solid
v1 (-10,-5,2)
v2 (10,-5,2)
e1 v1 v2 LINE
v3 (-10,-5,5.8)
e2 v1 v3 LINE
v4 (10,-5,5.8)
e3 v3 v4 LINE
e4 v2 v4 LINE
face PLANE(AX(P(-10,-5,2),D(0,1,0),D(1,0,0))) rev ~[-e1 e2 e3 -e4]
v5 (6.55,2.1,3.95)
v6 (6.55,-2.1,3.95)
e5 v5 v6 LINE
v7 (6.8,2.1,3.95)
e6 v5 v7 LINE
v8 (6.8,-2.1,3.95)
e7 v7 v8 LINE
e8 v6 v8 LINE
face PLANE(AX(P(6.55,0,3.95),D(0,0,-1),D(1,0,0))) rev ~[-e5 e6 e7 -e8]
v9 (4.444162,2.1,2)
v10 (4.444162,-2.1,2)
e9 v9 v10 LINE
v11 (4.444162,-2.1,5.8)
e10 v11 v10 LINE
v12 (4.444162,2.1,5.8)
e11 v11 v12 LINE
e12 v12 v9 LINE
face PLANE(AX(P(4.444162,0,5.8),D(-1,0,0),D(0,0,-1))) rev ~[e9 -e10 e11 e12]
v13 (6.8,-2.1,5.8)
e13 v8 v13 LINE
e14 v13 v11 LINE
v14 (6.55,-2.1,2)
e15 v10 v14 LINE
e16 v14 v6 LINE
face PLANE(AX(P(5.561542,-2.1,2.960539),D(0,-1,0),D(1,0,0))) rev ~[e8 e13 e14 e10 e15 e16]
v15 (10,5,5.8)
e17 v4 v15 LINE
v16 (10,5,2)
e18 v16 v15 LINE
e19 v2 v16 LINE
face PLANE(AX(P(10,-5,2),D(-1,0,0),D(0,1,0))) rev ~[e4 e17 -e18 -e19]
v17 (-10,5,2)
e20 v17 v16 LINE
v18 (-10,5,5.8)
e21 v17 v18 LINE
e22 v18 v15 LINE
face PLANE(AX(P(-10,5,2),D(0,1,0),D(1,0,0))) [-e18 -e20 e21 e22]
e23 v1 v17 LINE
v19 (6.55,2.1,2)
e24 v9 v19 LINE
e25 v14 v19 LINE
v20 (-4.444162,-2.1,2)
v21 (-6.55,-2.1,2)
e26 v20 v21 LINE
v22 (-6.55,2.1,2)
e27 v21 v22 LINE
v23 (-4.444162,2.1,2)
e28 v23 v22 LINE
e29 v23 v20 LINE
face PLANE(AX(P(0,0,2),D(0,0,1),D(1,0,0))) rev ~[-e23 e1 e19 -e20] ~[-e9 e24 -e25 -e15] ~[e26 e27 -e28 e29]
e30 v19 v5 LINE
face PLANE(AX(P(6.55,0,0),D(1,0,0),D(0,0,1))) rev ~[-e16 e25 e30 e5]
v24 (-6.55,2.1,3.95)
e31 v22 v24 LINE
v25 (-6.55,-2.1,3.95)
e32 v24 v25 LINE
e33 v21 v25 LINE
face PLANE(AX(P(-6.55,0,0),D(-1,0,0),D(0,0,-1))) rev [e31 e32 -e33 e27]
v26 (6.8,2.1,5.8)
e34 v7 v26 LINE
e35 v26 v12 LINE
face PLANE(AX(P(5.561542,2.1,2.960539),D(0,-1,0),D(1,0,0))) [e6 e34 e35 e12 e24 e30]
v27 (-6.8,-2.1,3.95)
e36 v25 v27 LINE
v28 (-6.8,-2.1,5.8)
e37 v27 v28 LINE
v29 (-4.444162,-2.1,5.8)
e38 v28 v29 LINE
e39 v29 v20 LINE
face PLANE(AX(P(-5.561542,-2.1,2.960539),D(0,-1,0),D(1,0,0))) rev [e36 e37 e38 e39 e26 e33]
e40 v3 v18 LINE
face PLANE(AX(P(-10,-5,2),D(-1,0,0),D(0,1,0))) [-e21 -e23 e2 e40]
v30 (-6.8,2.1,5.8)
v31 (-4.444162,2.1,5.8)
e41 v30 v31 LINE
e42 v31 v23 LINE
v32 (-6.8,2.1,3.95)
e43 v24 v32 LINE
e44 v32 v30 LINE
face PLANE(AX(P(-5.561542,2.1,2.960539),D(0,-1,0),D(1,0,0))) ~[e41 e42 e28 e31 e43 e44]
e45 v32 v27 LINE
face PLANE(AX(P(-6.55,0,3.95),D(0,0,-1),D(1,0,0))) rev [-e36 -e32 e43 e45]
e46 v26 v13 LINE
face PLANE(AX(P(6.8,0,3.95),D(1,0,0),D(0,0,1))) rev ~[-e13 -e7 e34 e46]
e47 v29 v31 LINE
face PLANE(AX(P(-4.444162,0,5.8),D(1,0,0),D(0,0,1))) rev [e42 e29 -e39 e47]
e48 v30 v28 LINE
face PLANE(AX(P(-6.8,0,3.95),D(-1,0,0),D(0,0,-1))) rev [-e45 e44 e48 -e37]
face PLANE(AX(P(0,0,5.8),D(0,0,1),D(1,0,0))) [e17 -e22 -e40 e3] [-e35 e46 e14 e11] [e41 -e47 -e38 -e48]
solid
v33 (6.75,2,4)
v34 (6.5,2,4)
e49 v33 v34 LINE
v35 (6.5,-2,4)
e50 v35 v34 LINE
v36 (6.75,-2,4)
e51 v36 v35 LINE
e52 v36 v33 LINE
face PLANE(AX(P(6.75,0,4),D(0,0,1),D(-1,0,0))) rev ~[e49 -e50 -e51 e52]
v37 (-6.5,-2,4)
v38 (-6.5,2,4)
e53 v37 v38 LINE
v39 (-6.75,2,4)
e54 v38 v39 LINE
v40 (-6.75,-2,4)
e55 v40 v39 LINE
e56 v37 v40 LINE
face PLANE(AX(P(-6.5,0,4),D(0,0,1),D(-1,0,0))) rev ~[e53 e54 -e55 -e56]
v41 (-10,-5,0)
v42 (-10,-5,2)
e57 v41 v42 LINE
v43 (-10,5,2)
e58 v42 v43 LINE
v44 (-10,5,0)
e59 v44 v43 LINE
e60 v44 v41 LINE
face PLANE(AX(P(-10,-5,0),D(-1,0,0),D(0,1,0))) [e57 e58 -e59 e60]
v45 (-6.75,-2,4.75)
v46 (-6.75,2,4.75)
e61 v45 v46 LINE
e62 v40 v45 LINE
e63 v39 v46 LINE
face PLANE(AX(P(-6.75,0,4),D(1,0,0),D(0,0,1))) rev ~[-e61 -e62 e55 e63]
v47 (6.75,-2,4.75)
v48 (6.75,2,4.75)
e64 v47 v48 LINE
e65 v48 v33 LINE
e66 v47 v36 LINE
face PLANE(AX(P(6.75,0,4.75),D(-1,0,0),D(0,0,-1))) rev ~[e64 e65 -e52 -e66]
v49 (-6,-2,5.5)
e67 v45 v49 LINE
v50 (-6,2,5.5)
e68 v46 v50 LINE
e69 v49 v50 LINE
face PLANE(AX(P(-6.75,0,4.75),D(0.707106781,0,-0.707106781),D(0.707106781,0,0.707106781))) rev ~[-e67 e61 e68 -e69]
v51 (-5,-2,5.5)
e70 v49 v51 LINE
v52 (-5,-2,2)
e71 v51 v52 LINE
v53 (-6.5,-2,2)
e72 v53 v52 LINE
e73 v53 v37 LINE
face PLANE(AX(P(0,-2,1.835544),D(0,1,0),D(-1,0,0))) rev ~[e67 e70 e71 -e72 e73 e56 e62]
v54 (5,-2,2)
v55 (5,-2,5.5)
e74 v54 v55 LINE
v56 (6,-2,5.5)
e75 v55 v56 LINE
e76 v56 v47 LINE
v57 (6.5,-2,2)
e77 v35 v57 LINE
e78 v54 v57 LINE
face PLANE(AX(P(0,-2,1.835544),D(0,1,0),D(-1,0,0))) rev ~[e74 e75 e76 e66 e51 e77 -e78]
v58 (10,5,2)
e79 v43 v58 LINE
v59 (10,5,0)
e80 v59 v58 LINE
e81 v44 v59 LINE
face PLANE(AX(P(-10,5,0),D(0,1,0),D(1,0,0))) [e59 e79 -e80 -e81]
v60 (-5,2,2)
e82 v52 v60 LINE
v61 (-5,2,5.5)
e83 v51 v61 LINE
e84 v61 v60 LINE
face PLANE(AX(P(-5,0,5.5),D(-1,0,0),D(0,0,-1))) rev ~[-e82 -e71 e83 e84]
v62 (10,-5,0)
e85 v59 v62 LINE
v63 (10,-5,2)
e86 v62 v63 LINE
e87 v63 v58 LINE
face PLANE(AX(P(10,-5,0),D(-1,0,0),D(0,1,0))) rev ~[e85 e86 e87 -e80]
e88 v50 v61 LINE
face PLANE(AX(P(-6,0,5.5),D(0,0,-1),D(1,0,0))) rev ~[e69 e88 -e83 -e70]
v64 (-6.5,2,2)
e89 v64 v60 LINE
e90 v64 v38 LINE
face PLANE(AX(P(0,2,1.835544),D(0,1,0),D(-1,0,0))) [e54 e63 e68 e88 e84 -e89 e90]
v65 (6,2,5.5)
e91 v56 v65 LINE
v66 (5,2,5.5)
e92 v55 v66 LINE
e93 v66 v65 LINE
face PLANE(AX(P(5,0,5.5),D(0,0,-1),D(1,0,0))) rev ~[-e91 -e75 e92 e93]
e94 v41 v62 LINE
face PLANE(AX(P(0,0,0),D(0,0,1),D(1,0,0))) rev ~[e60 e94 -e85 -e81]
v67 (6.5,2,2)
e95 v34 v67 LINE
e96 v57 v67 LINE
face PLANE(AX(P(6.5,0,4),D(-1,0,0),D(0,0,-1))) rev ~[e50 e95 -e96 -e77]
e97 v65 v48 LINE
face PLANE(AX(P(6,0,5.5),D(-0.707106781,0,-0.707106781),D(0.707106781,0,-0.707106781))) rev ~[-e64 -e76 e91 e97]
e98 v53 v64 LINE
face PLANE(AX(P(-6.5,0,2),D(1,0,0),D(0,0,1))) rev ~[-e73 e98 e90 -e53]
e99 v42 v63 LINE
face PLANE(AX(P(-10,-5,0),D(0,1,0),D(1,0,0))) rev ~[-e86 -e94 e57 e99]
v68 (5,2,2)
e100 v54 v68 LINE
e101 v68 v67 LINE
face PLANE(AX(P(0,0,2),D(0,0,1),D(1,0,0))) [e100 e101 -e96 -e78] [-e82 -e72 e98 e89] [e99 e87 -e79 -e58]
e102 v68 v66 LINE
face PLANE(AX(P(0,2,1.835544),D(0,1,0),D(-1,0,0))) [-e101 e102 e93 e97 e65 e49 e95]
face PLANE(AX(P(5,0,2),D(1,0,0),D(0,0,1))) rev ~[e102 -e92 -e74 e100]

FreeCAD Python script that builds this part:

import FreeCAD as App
import Part
import Sketcher

V = App.Vector
Q = App.Units.Quantity

doc = App.newDocument("Part")
body = doc.addObject("PartDesign::Body", "Body")

# Sketch on XY plane
sketch1 = body.newObject("Sketcher::SketchObject", "Sketch")
sketch1.AttachmentSupport = (doc.getObject("XY_Plane"), [""])
sketch1.MapMode = "FlatFace"
sketch1.addGeometry([
    Part.LineSegment(V(-10, 5, 0), V(-10, -5, 0)),
    Part.LineSegment(V(-10, -5, 0), V(10, -5, 0)),
    Part.LineSegment(V(10, -5, 0), V(10, 5, 0)),
    Part.LineSegment(V(10, 5, 0), V(-10, 5, 0)),
], False)
sketch1.addConstraint([
    Sketcher.Constraint("Coincident", 0, 2, 1, 1),
    Sketcher.Constraint("Coincident", 1, 2, 2, 1),
    Sketcher.Constraint("Coincident", 2, 2, 3, 1),
    Sketcher.Constraint("Coincident", 3, 2, 0, 1),
    Sketcher.Constraint("Vertical", 0),
    Sketcher.Constraint("Horizontal", 1),
    Sketcher.Constraint("Vertical", 2),
    Sketcher.Constraint("Horizontal", 3),
    Sketcher.Constraint("Symmetric", 0, 2, 2, 2, -1, 1),
    Sketcher.Constraint("DistanceX", 1, 1, 1, 2, Q("20 mm")),
    Sketcher.Constraint("DistanceY", 0, 2, 0, 1, Q("10 mm")),
])
pad1 = body.newObject("PartDesign::Pad", "Pad")
pad1.Profile = sketch1
pad1.Length = 2
body2 = doc.addObject("PartDesign::Body", "Body001")

# Sketch on XZ plane
sketch2 = body2.newObject("Sketcher::SketchObject", "Sketch001")
sketch2.AttachmentSupport = (doc.getObject("XZ_Plane001"), [""])
sketch2.MapMode = "FlatFace"
sketch2.addGeometry([
    Part.LineSegment(V(-10, 2, 0), V(-10, 0, 0)),  # 0
    Part.LineSegment(V(-10, 0, 0), V(10, 0, 0)),  # 1
    Part.LineSegment(V(10, 0, 0), V(10, 2, 0)),  # 2
    Part.LineSegment(V(10, 2, 0), V(6.5, 2, 0)),  # 3
    Part.LineSegment(V(6.5, 2, 0), V(6.5, 4, 0)),  # 4
    Part.LineSegment(V(6.5, 4, 0), V(6.75, 4, 0)),  # 5
    Part.LineSegment(V(6.75, 4, 0), V(6.75, 4.75, 0)),  # 6
    Part.LineSegment(V(6.75, 4.75, 0), V(6, 5.5, 0)),  # 7
    Part.LineSegment(V(6, 5.5, 0), V(5, 5.5, 0)),  # 8
    Part.LineSegment(V(5, 5.5, 0), V(5, 2, 0)),  # 9
    Part.LineSegment(V(5, 2, 0), V(-5, 2, 0)),  # 10
    Part.LineSegment(V(-5, 2, 0), V(-5, 5.5, 0)),  # 11
    Part.LineSegment(V(-5, 5.5, 0), V(-6, 5.5, 0)),  # 12
    Part.LineSegment(V(-6, 5.5, 0), V(-6.75, 4.75, 0)),  # 13
    Part.LineSegment(V(-6.75, 4.75, 0), V(-6.75, 4, 0)),  # 14
    Part.LineSegment(V(-6.75, 4, 0), V(-6.5, 4, 0)),  # 15
    Part.LineSegment(V(-6.5, 4, 0), V(-6.5, 2, 0)),  # 16
    Part.LineSegment(V(-6.5, 2, 0), V(-10, 2, 0)),  # 17
], False)
sketch2.addConstraint([
    Sketcher.Constraint("Coincident", 0, 2, 1, 1),
    Sketcher.Constraint("Coincident", 1, 2, 2, 1),
    Sketcher.Constraint("Coincident", 2, 2, 3, 1),
    Sketcher.Constraint("Coincident", 3, 2, 4, 1),
    Sketcher.Constraint("Coincident", 4, 2, 5, 1),
    Sketcher.Constraint("Coincident", 5, 2, 6, 1),
    Sketcher.Constraint("Coincident", 6, 2, 7, 1),
    Sketcher.Constraint("Coincident", 7, 2, 8, 1),
    Sketcher.Constraint("Coincident", 8, 2, 9, 1),
    Sketcher.Constraint("Coincident", 9, 2, 10, 1),
    Sketcher.Constraint("Coincident", 10, 2, 11, 1),
    Sketcher.Constraint("Coincident", 11, 2, 12, 1),
    Sketcher.Constraint("Coincident", 12, 2, 13, 1),
    Sketcher.Constraint("Coincident", 13, 2, 14, 1),
    Sketcher.Constraint("Coincident", 14, 2, 15, 1),
    Sketcher.Constraint("Coincident", 15, 2, 16, 1),
    Sketcher.Constraint("Coincident", 16, 2, 17, 1),
    Sketcher.Constraint("Coincident", 17, 2, 0, 1),
    Sketcher.Constraint("Vertical", 0),
    Sketcher.Constraint("Horizontal", 1),
    Sketcher.Constraint("Vertical", 2),
    Sketcher.Constraint("Horizontal", 3),
    Sketcher.Constraint("Vertical", 4),
    Sketcher.Constraint("Horizontal", 5),
    Sketcher.Constraint("Vertical", 6),
    Sketcher.Constraint("Horizontal", 8),
    Sketcher.Constraint("Vertical", 9),
    Sketcher.Constraint("Horizontal", 10),
    Sketcher.Constraint("Vertical", 11),
    Sketcher.Constraint("Horizontal", 12),
    Sketcher.Constraint("Vertical", 14),
    Sketcher.Constraint("Horizontal", 15),
    Sketcher.Constraint("Vertical", 16),
    Sketcher.Constraint("Horizontal", 17),
    Sketcher.Constraint("Symmetric", 0, 2, 1, 2, -1, 1),
    Sketcher.Constraint("Symmetric", 8, 2, 11, 2, -2),
    Sketcher.Constraint("Symmetric", 6, 2, 13, 2, -2),
    Sketcher.Constraint("Symmetric", 4, 2, 15, 2, -2),
    Sketcher.Constraint("Perpendicular", 7, 13),
    Sketcher.Constraint("Horizontal", 3, 2, 9, 2),
    Sketcher.Constraint("Horizontal", 10, 2, 16, 2),
    Sketcher.Constraint("Equal", 8, 12),
    Sketcher.Constraint("Equal", 2, 4),
    Sketcher.Constraint("Equal", 17, 9),
    Sketcher.Constraint("DistanceX", 1, 1, 1, 2, Q("20 mm")),
    Sketcher.Constraint("DistanceX", 8, 2, 8, 1, Q("1 mm")),
    Sketcher.Constraint("DistanceX", 10, 2, 10, 1, Q("10 mm")),
    Sketcher.Constraint("DistanceY", 0, 2, 0, 1, Q("2 mm")),
    Sketcher.Constraint("DistanceX", 3, 2, 3, 1, Q("3.5 mm")),
    Sketcher.Constraint("DistanceX", 5, 1, 5, 2, Q("0.25 mm")),
])
pad2 = body2.newObject("PartDesign::Pad", "Pad001")
pad2.Profile = sketch2
pad2.Length = 4
pad2.Midplane = True
doc.recompute()

boolean = body2.newObject("PartDesign::Boolean", "Boolean")
boolean.Type = "Fuse"
boolean.addObjects([body])
body3 = doc.addObject("PartDesign::Body", "Body002")

# Sketch on XZ plane
sketch3 = body3.newObject("Sketcher::SketchObject", "Sketch002")
sketch3.AttachmentSupport = (doc.getObject("XZ_Plane002"), [""])
sketch3.MapMode = "FlatFace"
sketch3.addGeometry([
    Part.LineSegment(V(6.55, 0, 0), V(6.55, 3.95, 0)),  # 0
    Part.LineSegment(V(6.55, 3.95, 0), V(6.8, 3.95, 0)),  # 1
    Part.LineSegment(V(6.8, 3.95, 0), V(6.8, 5.8, 0)),  # 2
    Part.LineSegment(V(6.8, 5.8, 0), V(4.44, 5.8, 0)),  # 3
    Part.LineSegment(V(4.44, 5.8, 0), V(4.44, 0, 0)),  # 4
    Part.LineSegment(V(4.44, 0, 0), V(6.55, 0, 0)),  # 5
], False)
sketch3.addConstraint([
    Sketcher.Constraint("Coincident", 0, 2, 1, 1),
    Sketcher.Constraint("Coincident", 1, 2, 2, 1),
    Sketcher.Constraint("Coincident", 2, 2, 3, 1),
    Sketcher.Constraint("Coincident", 3, 2, 4, 1),
    Sketcher.Constraint("Coincident", 4, 2, 5, 1),
    Sketcher.Constraint("Coincident", 5, 2, 0, 1),
    Sketcher.Constraint("Vertical", 0),
    Sketcher.Constraint("Horizontal", 1),
    Sketcher.Constraint("Vertical", 2),
    Sketcher.Constraint("Horizontal", 3),
    Sketcher.Constraint("Vertical", 4),
    Sketcher.Constraint("Horizontal", 5),
    Sketcher.Constraint("PointOnObject", 4, 2, -1),
    Sketcher.Constraint("DistanceY", 4, 2, 4, 1, Q("5.8 mm")),
    Sketcher.Constraint("DistanceX", 1, 1, 1, 2, Q("0.25 mm")),
    Sketcher.Constraint("DistanceY", 0, 1, 0, 2, Q("3.95 mm")),
    Sketcher.Constraint("DistanceX", -1, 1, 1, 2, Q("6.8 mm")),
    Sketcher.Constraint("DistanceX", 3, 2, 3, 1, Q("2.355838 mm")),
])
pad3 = body3.newObject("PartDesign::Pad", "Pad002")
pad3.Profile = sketch3
pad3.Length = 4.2
pad3.Midplane = True
body4 = doc.addObject("PartDesign::Body", "Body003")
body4.AllowCompound = True
doc.recompute()

mirroring = doc.addObject("Part::Mirroring", "Mirroring")
mirroring.Source = body3
mirroring.Base = V(0, 0, 0)
mirroring.Normal = V(1, 0, 0)
body4.BaseFeature = mirroring
doc.recompute()

boolean2 = body4.newObject("PartDesign::Boolean", "Boolean001")
boolean2.Type = "Fuse"
boolean2.addObjects([body3])
body5 = doc.addObject("PartDesign::Body", "Body004")

# Sketch on XY plane
sketch4 = body5.newObject("Sketcher::SketchObject", "Sketch003")
sketch4.AttachmentSupport = (doc.getObject("XY_Plane004"), [""])
sketch4.MapMode = "FlatFace"
sketch4.AttachmentOffset = App.Placement(V(0, 0, 2), App.Rotation())
sketch4.addGeometry([
    Part.LineSegment(V(-10, 5, 0), V(-10, -5, 0)),
    Part.LineSegment(V(-10, -5, 0), V(10, -5, 0)),
    Part.LineSegment(V(10, -5, 0), V(10, 5, 0)),
    Part.LineSegment(V(10, 5, 0), V(-10, 5, 0)),
], False)
sketch4.addConstraint([
    Sketcher.Constraint("Coincident", 0, 2, 1, 1),
    Sketcher.Constraint("Coincident", 1, 2, 2, 1),
    Sketcher.Constraint("Coincident", 2, 2, 3, 1),
    Sketcher.Constraint("Coincident", 3, 2, 0, 1),
    Sketcher.Constraint("Vertical", 0),
    Sketcher.Constraint("Horizontal", 1),
    Sketcher.Constraint("Vertical", 2),
    Sketcher.Constraint("Horizontal", 3),
    Sketcher.Constraint("Symmetric", 0, 2, 2, 2, -1, 1),
    Sketcher.Constraint("DistanceX", 1, 1, 1, 2, Q("20 mm")),
    Sketcher.Constraint("DistanceY", 0, 2, 0, 1, Q("10 mm")),
])
pad4 = body5.newObject("PartDesign::Pad", "Pad003")
pad4.Profile = sketch4
pad4.Length = 3.8
doc.recompute()

boolean3 = body5.newObject("PartDesign::Boolean", "Boolean002")
boolean3.Type = "Cut"
boolean3.addObjects([body4])
mirroring.Visibility = False

doc.recompute()
